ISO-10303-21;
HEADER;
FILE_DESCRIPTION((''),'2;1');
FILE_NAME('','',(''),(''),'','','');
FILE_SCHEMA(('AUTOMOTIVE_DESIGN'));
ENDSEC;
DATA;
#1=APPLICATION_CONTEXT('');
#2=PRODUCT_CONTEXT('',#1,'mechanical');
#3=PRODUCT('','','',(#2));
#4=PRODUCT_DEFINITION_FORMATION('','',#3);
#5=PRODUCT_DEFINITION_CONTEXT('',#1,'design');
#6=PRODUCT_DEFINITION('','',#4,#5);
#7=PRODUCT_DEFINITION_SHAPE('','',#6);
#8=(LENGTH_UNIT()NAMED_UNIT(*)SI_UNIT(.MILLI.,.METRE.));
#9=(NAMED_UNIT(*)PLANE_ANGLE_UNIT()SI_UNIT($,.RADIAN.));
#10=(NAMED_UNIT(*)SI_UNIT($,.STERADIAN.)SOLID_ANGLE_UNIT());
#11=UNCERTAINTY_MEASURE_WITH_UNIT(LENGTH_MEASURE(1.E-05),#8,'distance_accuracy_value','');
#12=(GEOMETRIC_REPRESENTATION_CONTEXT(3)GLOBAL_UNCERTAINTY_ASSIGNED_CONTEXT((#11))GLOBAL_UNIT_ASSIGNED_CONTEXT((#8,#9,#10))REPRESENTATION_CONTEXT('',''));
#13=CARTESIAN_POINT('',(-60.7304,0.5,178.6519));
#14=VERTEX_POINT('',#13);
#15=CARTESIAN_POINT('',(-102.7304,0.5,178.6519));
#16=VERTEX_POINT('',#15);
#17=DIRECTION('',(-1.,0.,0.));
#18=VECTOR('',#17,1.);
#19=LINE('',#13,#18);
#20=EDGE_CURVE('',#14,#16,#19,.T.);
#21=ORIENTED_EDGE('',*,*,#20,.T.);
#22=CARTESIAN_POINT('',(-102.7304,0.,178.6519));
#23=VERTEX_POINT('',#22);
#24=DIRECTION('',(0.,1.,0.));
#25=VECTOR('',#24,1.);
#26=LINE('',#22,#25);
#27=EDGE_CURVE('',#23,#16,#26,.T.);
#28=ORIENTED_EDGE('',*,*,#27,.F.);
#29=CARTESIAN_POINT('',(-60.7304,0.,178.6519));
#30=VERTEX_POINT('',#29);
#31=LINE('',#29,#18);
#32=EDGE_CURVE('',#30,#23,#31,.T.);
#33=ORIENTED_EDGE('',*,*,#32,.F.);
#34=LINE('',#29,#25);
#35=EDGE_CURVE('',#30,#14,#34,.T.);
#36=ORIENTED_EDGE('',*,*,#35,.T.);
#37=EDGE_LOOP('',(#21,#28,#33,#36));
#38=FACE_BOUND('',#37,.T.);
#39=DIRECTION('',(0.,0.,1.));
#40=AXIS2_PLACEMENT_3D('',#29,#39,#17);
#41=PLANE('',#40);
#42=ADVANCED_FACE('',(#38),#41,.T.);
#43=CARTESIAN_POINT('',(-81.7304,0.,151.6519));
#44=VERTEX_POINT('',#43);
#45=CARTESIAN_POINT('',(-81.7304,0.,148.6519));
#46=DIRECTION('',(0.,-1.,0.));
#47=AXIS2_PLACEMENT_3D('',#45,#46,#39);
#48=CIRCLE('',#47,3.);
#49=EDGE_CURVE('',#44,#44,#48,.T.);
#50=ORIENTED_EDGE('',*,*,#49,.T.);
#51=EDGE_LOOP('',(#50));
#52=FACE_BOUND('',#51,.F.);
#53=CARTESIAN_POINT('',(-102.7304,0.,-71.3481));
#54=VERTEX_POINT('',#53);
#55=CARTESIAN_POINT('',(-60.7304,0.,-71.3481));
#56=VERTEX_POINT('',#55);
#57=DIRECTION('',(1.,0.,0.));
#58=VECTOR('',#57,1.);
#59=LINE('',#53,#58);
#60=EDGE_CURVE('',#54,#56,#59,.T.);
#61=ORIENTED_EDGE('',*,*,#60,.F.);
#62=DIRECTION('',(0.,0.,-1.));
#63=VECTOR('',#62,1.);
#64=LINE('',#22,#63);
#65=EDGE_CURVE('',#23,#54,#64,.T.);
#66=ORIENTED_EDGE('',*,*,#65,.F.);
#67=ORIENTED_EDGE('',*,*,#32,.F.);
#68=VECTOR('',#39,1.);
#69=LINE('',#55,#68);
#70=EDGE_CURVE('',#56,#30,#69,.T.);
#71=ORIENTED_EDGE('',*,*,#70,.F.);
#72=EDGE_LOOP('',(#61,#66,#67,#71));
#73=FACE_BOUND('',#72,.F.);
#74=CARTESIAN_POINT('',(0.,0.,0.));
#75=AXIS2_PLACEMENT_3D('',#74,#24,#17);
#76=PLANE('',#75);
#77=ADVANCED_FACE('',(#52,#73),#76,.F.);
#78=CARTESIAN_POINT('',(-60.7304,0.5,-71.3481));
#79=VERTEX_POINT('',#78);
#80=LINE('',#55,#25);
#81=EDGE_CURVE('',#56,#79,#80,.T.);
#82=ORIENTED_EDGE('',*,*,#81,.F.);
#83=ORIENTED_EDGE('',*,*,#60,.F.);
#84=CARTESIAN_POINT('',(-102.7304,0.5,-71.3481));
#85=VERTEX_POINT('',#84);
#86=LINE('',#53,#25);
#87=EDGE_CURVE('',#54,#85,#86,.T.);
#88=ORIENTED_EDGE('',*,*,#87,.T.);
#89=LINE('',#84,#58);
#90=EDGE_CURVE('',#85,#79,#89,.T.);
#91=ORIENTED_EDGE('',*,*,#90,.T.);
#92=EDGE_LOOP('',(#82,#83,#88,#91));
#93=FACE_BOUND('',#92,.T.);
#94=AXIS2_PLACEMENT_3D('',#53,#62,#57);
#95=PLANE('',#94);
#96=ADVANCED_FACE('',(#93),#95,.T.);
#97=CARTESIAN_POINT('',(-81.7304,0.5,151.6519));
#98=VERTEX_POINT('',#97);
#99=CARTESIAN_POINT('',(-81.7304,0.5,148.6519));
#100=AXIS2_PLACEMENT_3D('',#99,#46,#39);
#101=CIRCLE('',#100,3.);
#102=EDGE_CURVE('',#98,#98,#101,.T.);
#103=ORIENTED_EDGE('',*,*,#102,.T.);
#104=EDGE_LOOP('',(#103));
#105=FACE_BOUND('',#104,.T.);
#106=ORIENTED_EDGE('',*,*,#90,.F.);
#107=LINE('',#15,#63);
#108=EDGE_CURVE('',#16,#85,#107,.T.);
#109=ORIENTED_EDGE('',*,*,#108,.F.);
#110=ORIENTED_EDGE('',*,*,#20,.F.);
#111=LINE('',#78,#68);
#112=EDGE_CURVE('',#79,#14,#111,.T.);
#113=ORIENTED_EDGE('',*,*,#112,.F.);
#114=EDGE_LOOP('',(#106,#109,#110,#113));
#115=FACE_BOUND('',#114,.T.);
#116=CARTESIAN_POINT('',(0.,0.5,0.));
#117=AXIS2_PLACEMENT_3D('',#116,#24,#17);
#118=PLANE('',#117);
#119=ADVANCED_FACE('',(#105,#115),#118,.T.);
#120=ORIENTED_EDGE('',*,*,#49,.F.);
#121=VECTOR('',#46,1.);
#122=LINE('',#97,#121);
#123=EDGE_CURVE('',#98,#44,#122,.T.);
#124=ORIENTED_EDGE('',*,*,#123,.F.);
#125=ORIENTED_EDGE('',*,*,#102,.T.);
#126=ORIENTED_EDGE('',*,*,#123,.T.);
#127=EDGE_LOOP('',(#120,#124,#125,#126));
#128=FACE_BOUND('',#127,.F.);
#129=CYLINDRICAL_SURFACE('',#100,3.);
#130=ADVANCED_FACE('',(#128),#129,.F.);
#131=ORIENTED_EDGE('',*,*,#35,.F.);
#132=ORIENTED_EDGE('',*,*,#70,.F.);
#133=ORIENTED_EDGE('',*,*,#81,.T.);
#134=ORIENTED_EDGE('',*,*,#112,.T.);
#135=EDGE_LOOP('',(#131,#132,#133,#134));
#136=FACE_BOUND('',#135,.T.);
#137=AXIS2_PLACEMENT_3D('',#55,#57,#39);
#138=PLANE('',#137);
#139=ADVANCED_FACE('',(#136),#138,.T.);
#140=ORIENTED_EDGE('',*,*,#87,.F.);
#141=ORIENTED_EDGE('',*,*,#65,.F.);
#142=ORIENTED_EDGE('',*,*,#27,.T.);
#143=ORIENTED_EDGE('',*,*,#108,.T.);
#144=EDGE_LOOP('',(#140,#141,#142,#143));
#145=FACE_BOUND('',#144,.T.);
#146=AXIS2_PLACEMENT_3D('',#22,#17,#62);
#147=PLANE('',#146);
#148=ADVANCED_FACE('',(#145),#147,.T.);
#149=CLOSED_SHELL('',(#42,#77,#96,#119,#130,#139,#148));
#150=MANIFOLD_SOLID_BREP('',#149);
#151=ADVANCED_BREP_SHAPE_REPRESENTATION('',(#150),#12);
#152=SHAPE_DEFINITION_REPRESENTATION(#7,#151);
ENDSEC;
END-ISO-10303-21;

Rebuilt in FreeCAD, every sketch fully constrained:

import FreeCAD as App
import Part
import Sketcher
Q = App.Units.Quantity

doc = App.newDocument("Part")
body = doc.addObject("PartDesign::Body", "Body")

# Sketch on XZ plane
sketch1 = body.newObject("Sketcher::SketchObject", "Sketch")
sketch1.AttachmentSupport = (doc.getObject("XZ_Plane"), [""])
sketch1.MapMode = "FlatFace"
sketch1.addGeometry([
    Part.LineSegment(App.Vector(-61, -71, 0), App.Vector(-103, -71, 0)),
    Part.LineSegment(App.Vector(-103, -71, 0), App.Vector(-103, 179, 0)),
    Part.LineSegment(App.Vector(-103, 179, 0), App.Vector(-61, 179, 0)),
    Part.LineSegment(App.Vector(-61, 179, 0), App.Vector(-61, -71, 0)),
], False)
sketch1.addConstraint([
    Sketcher.Constraint("Coincident", 0, 2, 1, 1),
    Sketcher.Constraint("Coincident", 1, 2, 2, 1),
    Sketcher.Constraint("Coincident", 2, 2, 3, 1),
    Sketcher.Constraint("Coincident", 3, 2, 0, 1),
    Sketcher.Constraint("Horizontal", 0),
    Sketcher.Constraint("Vertical", 1),
    Sketcher.Constraint("Horizontal", 2),
    Sketcher.Constraint("Vertical", 3),
    Sketcher.Constraint("DistanceX", 0, 2, 0, 1, Q("42 mm")),
    Sketcher.Constraint("DistanceY", 1, 1, 1, 2, Q("250 mm")),
    Sketcher.Constraint("DistanceY", 0, 2, -1, 1, Q("71.348 mm")),
    Sketcher.Constraint("DistanceX", 0, 2, -1, 1, Q("102.7304 mm")),
])
pad1 = body.newObject("PartDesign::Pad", "Pad")
pad1.Profile = sketch1
pad1.Length = 0.5
pad1.Reversed = True

# Sketch on XZ plane
sketch2 = body.newObject("Sketcher::SketchObject", "Sketch001")
sketch2.AttachmentSupport = (doc.getObject("XZ_Plane"), [""])
sketch2.MapMode = "FlatFace"
sketch2.AttachmentOffset = App.Placement(App.Vector(0, 0, -0.5), App.Rotation())
sketch2.addGeometry(Part.Circle(App.Vector(-81.7, 148.7, 0), App.Vector(0, 0, 1), 3), False)
sketch2.addConstraint([
    Sketcher.Constraint("Diameter", 0, Q("6 mm")),
    Sketcher.Constraint("DistanceY", -1, 1, 0, 3, Q("148.652 mm")),
    Sketcher.Constraint("DistanceX", 0, 3, -1, 1, Q("81.7304 mm")),
])
doc.recompute()
hole = body.newObject("PartDesign::Hole", "Hole")
hole.Profile = sketch2
hole.ThreadType = "None"
hole.Diameter = 6
hole.DepthType = "Dimension"
hole.Depth = 0.5
hole.DrillPoint = "Angled"
hole.DrillPointAngle = 118
hole.Reversed = True

doc.recompute()
